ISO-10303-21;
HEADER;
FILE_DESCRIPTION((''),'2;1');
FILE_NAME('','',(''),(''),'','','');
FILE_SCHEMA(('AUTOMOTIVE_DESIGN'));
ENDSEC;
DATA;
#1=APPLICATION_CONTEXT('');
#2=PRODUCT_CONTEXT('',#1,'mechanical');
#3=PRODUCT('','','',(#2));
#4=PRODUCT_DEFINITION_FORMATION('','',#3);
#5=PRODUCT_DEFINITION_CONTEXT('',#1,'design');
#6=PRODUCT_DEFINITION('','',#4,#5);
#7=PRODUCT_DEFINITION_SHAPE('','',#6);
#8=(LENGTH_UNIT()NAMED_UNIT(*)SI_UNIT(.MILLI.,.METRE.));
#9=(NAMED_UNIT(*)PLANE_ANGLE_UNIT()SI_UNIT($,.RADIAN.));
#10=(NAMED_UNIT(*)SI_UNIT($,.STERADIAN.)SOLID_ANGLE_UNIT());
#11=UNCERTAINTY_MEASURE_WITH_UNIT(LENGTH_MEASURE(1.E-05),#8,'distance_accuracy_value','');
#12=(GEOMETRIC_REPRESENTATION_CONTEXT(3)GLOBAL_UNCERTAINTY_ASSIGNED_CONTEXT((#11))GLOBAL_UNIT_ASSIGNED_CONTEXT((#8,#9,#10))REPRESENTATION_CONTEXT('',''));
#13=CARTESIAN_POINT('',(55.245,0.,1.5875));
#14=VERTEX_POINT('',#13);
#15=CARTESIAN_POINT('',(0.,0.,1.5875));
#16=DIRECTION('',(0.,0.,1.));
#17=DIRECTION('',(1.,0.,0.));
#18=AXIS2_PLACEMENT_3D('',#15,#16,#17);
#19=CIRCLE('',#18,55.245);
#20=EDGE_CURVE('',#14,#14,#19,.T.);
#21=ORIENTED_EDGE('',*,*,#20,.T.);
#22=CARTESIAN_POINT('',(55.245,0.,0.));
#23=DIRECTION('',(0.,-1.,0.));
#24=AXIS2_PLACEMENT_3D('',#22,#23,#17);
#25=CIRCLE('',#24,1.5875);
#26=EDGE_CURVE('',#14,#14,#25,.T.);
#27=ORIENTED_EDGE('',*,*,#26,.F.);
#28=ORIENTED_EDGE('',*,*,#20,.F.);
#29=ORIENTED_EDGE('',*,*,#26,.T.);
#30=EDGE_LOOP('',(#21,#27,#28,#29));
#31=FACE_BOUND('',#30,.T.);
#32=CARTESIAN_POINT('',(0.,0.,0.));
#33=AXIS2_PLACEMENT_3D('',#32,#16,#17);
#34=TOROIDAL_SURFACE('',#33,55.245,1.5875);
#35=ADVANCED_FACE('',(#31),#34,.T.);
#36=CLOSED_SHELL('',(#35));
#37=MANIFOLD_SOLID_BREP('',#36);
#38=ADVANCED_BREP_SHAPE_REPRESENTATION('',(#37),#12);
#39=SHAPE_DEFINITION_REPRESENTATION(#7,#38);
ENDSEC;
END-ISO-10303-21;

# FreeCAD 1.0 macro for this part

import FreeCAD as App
import Part
import Sketcher
Q = App.Units.Quantity

doc = App.newDocument("Part")
body = doc.addObject("PartDesign::Body", "Body")

sketch1 = doc.addObject("Sketcher::SketchObject", "Sketch")
body.addObject(sketch1)
sketch1.AttachmentSupport = (doc.XZ_Plane, [""])
sketch1.MapMode = "FlatFace"
sketch1.addGeometry(Part.Circle(App.Vector(55.245, 0, 0), App.Vector(0, 0, 1), 1.5875), False)
sketch1.addConstraint(Sketcher.Constraint("PointOnObject", 0, 3, -1))
sketch1.addConstraint(Sketcher.Constraint("Diameter", 0, Q("0.125 in")))
sketch1.addConstraint(Sketcher.Constraint("DistanceX", -1, 1, 0, 3, Q("2.175 in")))

sketch2 = doc.addObject("Sketcher::SketchObject", "Sketch001")
body.addObject(sketch2)
sketch2.AttachmentSupport = (doc.XY_Plane, [""])
sketch2.MapMode = "FlatFace"
sketch2.addGeometry(Part.Circle(App.Vector(0, 0, 0), App.Vector(0, 0, 1), 55.245), False)
sketch2.addConstraint(Sketcher.Constraint("Coincident", 0, 3, -1, 1))
sketch2.addConstraint(Sketcher.Constraint("Diameter", 0, Q("4.35 in")))
doc.recompute()

additivepipe = doc.addObject("PartDesign::AdditivePipe", "AdditivePipe")
body.addObject(additivepipe)
additivepipe.Profile = sketch1
additivepipe.Spine = (sketch2, ["Edge1"])

doc.recompute()
